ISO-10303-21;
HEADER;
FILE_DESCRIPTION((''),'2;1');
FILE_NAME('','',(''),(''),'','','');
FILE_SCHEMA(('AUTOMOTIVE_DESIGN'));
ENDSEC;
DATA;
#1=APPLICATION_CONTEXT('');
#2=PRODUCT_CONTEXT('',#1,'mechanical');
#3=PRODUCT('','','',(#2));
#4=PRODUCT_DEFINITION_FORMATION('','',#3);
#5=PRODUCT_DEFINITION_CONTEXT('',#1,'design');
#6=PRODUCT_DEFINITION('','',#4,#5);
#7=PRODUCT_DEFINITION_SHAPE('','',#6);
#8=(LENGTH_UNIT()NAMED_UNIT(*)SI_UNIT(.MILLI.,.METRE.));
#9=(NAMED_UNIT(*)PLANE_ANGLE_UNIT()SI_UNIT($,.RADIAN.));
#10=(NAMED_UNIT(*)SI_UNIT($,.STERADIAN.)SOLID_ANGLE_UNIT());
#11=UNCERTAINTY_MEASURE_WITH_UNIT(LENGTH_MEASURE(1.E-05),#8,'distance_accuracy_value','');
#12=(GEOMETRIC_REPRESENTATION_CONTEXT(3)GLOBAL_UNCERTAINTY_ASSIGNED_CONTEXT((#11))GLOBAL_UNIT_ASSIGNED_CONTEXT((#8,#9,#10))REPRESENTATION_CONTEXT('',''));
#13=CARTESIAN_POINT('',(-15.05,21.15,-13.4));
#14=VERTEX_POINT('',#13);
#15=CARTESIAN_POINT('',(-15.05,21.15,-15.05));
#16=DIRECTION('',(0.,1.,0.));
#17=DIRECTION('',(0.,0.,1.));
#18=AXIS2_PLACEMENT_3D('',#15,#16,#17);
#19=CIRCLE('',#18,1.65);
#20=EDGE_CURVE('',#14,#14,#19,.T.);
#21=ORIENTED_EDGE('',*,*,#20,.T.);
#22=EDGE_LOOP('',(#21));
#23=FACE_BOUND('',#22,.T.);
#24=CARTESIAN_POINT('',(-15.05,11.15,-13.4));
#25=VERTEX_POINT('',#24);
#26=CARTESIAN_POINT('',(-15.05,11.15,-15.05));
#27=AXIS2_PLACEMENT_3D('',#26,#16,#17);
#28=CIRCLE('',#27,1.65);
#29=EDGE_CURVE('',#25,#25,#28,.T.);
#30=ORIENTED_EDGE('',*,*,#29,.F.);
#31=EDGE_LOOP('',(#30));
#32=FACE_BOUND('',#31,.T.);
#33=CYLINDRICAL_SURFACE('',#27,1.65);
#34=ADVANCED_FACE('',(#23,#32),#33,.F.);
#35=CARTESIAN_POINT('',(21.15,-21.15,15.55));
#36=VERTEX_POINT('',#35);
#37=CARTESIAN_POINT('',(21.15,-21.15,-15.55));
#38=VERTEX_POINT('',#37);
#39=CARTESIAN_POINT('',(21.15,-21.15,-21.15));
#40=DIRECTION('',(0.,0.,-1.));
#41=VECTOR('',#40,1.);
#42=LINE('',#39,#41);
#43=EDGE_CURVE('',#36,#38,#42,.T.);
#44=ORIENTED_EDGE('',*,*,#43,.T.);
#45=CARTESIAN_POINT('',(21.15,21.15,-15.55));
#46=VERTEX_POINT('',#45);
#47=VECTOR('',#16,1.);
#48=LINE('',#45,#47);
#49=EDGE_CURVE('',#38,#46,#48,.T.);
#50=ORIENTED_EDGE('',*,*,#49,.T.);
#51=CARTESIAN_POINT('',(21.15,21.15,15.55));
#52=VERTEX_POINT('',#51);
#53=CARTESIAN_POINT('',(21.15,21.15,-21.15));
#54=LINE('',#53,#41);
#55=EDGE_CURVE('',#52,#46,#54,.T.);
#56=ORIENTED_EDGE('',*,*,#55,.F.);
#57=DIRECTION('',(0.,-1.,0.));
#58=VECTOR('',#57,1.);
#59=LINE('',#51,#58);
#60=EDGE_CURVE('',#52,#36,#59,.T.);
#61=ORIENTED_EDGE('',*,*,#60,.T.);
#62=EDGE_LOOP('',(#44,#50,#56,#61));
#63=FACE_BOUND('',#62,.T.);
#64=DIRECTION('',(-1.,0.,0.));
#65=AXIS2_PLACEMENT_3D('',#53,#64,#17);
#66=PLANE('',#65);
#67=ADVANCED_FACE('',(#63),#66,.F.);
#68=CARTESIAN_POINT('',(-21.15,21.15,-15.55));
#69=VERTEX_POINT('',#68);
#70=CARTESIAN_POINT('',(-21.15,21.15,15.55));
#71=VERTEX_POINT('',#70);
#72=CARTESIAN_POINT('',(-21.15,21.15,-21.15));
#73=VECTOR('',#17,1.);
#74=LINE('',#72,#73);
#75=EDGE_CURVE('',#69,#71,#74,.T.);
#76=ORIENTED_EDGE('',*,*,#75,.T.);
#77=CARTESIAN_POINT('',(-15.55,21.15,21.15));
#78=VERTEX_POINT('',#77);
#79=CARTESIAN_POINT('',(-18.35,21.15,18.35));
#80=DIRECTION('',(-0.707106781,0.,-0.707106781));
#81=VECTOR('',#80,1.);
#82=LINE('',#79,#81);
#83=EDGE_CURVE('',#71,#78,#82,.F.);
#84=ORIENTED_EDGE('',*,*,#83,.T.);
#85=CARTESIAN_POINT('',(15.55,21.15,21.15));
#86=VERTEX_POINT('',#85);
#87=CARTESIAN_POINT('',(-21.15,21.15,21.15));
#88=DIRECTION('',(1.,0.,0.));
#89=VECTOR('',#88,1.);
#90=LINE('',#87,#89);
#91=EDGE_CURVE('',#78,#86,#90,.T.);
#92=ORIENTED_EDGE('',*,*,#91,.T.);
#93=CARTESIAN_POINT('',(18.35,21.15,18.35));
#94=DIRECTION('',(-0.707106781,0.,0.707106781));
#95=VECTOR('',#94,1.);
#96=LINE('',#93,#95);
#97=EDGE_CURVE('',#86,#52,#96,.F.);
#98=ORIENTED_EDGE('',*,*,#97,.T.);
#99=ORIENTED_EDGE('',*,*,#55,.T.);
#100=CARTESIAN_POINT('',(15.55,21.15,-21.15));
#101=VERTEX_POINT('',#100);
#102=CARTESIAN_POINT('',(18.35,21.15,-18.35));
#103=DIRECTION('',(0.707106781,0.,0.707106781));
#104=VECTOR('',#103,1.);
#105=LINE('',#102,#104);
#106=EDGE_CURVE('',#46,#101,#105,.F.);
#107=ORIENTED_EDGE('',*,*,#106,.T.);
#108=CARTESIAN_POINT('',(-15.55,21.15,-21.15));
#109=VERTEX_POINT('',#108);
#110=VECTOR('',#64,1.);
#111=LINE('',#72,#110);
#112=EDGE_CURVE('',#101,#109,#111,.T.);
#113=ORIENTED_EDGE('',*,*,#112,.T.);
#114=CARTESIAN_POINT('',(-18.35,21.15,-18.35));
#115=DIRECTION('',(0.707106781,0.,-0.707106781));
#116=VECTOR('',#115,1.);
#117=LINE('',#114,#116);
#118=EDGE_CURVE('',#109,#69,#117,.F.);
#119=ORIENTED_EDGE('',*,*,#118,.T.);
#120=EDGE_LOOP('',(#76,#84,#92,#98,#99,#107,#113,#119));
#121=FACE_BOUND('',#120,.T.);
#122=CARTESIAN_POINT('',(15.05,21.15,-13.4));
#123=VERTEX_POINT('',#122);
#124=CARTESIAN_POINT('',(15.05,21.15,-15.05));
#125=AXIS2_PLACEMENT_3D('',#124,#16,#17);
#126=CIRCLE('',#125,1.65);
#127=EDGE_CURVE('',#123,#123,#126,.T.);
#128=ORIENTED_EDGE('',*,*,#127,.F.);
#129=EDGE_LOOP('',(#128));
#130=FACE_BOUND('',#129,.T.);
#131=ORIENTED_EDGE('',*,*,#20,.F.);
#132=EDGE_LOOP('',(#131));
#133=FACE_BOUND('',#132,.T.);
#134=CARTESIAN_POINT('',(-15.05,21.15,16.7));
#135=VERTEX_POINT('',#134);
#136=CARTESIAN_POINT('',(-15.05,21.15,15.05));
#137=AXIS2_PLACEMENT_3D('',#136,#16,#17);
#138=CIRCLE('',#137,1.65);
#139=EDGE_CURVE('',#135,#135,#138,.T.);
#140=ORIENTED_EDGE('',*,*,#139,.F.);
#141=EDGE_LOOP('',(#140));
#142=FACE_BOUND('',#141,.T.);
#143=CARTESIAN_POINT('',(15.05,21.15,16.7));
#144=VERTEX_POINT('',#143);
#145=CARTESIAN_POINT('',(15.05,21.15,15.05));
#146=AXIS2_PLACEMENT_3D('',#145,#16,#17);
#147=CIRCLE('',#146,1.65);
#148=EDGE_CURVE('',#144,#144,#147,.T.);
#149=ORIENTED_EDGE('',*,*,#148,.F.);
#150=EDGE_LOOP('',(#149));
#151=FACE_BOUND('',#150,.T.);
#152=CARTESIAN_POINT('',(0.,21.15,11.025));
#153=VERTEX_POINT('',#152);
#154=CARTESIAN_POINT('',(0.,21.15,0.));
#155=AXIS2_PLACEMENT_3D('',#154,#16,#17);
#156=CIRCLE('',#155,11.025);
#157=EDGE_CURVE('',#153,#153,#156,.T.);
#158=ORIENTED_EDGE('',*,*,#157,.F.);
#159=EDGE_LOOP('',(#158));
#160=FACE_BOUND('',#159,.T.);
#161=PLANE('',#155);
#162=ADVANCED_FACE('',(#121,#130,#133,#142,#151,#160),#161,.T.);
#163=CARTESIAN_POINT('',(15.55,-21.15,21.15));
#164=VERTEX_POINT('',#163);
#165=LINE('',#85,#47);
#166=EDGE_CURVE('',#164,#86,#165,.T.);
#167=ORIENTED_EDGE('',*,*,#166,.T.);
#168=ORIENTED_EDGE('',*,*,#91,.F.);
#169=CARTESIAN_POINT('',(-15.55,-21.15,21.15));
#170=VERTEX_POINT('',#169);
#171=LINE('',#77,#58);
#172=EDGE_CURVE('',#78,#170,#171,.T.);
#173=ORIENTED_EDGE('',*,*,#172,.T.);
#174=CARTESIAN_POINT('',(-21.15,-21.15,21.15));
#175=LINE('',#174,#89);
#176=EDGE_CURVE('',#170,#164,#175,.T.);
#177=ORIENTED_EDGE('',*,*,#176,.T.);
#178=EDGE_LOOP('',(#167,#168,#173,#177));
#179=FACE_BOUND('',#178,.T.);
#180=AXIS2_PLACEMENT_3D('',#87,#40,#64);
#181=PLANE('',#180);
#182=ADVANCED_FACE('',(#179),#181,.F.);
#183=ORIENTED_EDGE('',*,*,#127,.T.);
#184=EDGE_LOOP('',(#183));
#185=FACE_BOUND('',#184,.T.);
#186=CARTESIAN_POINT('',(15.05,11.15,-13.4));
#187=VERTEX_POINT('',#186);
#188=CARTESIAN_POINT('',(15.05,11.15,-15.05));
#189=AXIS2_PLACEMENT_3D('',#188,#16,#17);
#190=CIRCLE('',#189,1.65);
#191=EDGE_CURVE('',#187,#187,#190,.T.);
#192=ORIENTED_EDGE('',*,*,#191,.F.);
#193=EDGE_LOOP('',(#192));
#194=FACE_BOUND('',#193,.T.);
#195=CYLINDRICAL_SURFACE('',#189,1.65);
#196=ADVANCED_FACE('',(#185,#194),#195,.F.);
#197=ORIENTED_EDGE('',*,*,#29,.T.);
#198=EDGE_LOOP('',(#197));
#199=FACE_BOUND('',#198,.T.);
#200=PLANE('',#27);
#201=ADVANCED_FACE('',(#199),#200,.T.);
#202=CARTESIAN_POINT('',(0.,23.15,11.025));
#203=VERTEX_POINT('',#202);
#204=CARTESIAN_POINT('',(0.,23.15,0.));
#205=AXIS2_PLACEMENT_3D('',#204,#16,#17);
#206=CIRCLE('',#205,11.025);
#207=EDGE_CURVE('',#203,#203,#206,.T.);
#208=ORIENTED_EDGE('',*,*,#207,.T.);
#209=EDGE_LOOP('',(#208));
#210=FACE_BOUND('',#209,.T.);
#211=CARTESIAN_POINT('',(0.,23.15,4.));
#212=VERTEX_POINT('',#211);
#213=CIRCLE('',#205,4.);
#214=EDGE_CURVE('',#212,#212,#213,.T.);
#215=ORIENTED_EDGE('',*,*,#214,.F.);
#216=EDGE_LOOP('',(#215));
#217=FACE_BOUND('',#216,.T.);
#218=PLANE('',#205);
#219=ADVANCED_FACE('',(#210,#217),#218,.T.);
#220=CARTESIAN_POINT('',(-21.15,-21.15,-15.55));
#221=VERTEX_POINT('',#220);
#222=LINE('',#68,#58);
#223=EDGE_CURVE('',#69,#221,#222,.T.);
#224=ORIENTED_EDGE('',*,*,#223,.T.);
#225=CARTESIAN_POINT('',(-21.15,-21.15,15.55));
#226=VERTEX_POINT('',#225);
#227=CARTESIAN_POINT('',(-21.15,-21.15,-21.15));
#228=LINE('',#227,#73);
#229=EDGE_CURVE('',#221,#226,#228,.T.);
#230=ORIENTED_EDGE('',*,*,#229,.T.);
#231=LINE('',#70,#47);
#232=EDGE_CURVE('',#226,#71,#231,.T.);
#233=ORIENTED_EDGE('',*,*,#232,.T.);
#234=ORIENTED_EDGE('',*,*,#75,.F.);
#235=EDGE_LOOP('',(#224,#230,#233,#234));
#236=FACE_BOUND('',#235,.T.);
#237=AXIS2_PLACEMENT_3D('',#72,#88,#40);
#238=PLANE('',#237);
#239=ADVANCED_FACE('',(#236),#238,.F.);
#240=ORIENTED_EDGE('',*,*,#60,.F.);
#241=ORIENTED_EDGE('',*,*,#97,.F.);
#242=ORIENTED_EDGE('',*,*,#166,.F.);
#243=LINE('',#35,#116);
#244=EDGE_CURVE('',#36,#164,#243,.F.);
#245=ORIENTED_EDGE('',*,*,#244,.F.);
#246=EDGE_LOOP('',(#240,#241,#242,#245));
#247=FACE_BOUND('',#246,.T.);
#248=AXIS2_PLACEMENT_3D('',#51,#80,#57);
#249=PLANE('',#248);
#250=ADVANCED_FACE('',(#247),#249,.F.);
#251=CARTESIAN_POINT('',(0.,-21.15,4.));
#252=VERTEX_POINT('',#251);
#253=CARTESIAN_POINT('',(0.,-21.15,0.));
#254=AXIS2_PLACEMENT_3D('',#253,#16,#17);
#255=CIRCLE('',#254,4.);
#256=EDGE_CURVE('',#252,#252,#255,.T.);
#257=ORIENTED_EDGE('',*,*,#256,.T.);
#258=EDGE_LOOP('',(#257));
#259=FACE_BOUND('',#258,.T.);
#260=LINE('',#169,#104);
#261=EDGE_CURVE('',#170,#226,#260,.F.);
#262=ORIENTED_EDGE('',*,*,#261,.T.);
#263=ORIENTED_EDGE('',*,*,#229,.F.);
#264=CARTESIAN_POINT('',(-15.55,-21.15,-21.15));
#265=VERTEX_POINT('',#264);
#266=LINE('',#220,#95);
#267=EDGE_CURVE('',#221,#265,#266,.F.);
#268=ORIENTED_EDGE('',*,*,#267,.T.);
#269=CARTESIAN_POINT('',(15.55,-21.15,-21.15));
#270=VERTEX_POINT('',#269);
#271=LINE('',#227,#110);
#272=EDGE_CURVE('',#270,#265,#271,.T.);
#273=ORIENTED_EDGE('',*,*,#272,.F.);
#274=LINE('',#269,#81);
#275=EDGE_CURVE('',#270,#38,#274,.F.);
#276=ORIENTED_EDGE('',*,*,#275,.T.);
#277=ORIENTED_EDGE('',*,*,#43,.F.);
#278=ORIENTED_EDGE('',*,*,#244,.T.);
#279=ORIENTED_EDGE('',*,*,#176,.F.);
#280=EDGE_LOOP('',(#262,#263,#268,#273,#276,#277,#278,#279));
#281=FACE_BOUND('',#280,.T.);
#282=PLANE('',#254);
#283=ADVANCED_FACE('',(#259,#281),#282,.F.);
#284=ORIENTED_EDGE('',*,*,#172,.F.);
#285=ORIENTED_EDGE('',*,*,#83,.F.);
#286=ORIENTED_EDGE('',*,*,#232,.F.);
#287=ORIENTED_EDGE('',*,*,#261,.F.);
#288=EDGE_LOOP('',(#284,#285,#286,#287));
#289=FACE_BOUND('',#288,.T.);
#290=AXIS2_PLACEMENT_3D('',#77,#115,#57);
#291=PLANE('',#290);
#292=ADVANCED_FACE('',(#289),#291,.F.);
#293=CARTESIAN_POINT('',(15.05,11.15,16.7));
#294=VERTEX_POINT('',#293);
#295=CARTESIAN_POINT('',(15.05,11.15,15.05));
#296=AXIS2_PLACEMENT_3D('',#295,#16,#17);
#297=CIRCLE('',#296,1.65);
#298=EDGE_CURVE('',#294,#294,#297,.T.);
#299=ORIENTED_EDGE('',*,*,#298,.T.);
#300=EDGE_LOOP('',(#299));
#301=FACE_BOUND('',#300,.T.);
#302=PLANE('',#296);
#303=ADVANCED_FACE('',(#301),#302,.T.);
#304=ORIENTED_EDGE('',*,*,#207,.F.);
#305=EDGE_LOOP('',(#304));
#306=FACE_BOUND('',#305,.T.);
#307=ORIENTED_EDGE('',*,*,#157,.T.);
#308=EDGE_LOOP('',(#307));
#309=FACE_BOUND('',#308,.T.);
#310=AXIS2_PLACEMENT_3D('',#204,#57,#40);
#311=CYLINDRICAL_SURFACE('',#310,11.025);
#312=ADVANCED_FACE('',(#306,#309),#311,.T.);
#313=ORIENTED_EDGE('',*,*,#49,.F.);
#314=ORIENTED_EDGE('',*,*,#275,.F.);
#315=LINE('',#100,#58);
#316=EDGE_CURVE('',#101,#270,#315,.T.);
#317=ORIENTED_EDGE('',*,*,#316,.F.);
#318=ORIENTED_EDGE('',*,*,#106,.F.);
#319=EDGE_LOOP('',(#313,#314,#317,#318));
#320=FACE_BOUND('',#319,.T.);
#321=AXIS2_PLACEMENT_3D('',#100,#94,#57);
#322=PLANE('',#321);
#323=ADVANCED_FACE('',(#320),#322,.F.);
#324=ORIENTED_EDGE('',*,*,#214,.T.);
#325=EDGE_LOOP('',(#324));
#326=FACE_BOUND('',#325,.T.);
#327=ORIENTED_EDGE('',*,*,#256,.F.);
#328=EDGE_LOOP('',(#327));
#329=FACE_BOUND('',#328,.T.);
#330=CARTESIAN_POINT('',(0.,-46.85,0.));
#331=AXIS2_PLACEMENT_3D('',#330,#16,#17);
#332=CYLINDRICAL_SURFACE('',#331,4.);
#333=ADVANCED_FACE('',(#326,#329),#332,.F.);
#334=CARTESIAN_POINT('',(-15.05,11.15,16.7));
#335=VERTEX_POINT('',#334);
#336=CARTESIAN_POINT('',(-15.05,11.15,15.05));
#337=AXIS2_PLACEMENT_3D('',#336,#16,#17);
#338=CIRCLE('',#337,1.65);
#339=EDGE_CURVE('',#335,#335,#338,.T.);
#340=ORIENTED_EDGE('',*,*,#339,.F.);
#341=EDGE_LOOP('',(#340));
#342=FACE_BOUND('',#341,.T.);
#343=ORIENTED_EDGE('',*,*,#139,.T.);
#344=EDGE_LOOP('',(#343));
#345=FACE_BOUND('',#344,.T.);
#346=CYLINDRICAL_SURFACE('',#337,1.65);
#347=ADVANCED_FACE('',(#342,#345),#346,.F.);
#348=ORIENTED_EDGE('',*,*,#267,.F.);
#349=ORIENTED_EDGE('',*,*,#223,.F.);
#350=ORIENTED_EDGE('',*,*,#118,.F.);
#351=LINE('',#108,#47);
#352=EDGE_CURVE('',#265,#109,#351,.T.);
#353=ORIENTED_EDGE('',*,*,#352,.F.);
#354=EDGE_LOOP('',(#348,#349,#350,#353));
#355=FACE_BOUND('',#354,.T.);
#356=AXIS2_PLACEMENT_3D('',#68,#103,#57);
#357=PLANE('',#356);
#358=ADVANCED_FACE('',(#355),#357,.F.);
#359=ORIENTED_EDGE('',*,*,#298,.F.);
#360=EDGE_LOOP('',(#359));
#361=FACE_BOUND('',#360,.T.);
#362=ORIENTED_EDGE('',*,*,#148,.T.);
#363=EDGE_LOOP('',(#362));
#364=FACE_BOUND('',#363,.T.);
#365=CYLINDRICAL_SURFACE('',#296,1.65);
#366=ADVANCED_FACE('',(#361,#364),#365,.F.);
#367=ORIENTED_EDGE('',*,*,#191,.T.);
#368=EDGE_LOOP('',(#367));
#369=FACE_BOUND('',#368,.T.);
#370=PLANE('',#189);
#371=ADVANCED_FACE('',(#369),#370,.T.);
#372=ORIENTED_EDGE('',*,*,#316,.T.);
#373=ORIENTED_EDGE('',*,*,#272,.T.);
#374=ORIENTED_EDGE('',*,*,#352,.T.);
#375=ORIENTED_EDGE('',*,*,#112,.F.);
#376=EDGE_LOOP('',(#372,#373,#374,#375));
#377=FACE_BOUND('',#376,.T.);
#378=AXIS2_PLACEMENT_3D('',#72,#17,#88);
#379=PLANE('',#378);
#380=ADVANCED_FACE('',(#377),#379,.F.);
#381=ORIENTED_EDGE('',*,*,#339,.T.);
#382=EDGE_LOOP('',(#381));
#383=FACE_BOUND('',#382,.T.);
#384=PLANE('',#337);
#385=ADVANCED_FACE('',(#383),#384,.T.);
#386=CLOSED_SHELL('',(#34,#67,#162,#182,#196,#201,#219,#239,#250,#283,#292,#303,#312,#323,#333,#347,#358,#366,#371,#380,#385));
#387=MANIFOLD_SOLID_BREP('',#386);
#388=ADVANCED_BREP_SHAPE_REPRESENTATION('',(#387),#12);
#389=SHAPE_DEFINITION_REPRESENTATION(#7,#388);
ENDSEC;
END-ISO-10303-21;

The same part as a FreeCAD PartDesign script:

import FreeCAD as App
import Part
import Sketcher
from FreeCAD import Vector
Q = App.Units.Quantity


def edges_at(feature, points):
    """Names of the edges that pass closest to the given points."""
    edges = feature.Shape.Edges
    near = lambda p: min(range(len(edges)), key=lambda i: edges[i].distToShape(Part.Vertex(*p))[0])
    return sorted({f"Edge{near(p) + 1}" for p in points})

doc = App.newDocument("Part")
body = doc.addObject("PartDesign::Body", "Body")

# Sketch on XZ plane
sketch1 = body.newObject("Sketcher::SketchObject", "Sketch")
sketch1.AttachmentSupport = (doc.getObject("XZ_Plane"), [""])
sketch1.MapMode = "FlatFace"
sketch1.addGeometry([
    Part.LineSegment(Vector(-21, -21, 0), Vector(-21, 21, 0)),
    Part.LineSegment(Vector(-21, 21, 0), Vector(21, 21, 0)),
    Part.LineSegment(Vector(21, 21, 0), Vector(21, -21, 0)),
    Part.LineSegment(Vector(21, -21, 0), Vector(-21, -21, 0)),
], False)
sketch1.addConstraint([
    Sketcher.Constraint("Coincident", 0, 2, 1, 1),
    Sketcher.Constraint("Coincident", 1, 2, 2, 1),
    Sketcher.Constraint("Coincident", 2, 2, 3, 1),
    Sketcher.Constraint("Coincident", 3, 2, 0, 1),
    Sketcher.Constraint("Vertical", 0),
    Sketcher.Constraint("Horizontal", 1),
    Sketcher.Constraint("Vertical", 2),
    Sketcher.Constraint("Horizontal", 3),
    Sketcher.Constraint("Symmetric", 0, 2, 2, 2, -1, 1),
    Sketcher.Constraint("Equal", 3, 0),
    Sketcher.Constraint("DistanceX", 1, 1, 1, 2, Q("42.3 mm")),
])
pad1 = body.newObject("PartDesign::Pad", "Pad")
pad1.Profile = sketch1
pad1.Length = 42.3
pad1.Midplane = True

# Sketch on XZ plane
sketch2 = body.newObject("Sketcher::SketchObject", "Sketch001")
sketch2.AttachmentSupport = (doc.getObject("XZ_Plane"), [""])
sketch2.MapMode = "FlatFace"
sketch2.AttachmentOffset = App.Placement(Vector(0, 0, -21.15), App.Rotation())
sketch2.addGeometry(Part.Circle(Vector(0, 0, 0), Vector(0, 0, 1), 11), False)
sketch2.addConstraint([
    Sketcher.Constraint("Coincident", 0, 3, -1, 1),
    Sketcher.Constraint("Diameter", 0, Q("22.05 mm")),
])
pad2 = body.newObject("PartDesign::Pad", "Pad001")
pad2.Profile = sketch2
pad2.Length = 2
pad2.Reversed = True
doc.recompute()

chamfer = body.newObject("PartDesign::Chamfer", "Chamfer")
chamfer.Base = (pad2, edges_at(pad2, [
    (21.15, 0, 21.15),
    (-21.15, 0, 21.15),
    (-21.15, 0, -21.15),
    (21.15, 0, -21.15),
]))
chamfer.Size = 5.6

# Sketch on XZ plane
sketch3 = body.newObject("Sketcher::SketchObject", "Sketch002")
sketch3.AttachmentSupport = (doc.getObject("XZ_Plane"), [""])
sketch3.MapMode = "FlatFace"
sketch3.AttachmentOffset = App.Placement(Vector(0, 0, -21.15), App.Rotation())
sketch3.addGeometry([
    Part.Circle(Vector(-15.1, -15.1, 0), Vector(0, 0, 1), 1.6),
    Part.Circle(Vector(15.1, -15.1, 0), Vector(0, 0, 1), 1.6),
    Part.Circle(Vector(15.1, 15.1, 0), Vector(0, 0, 1), 1.6),
    Part.Circle(Vector(-15.1, 15.1, 0), Vector(0, 0, 1), 1.6),
], False)
sketch3.addConstraint([
    Sketcher.Constraint("Equal", 0, 1),
    Sketcher.Constraint("Equal", 1, 2),
    Sketcher.Constraint("Equal", 2, 3),
    Sketcher.Constraint("Symmetric", 0, 3, 2, 3, -1, 1),
    Sketcher.Constraint("Symmetric", 1, 3, 3, 3, -1, 1),
    Sketcher.Constraint("Symmetric", 0, 3, 1, 3, -2),
    Sketcher.Constraint("Diameter", 0, Q("3.3 mm")),
    Sketcher.Constraint("DistanceX", 0, 3, 1, 3, Q("30.1 mm")),
    Sketcher.Constraint("DistanceY", 1, 3, 2, 3, Q("30.1 mm")),
])
pocket1 = body.newObject("PartDesign::Pocket", "Pocket")
pocket1.Profile = sketch3
pocket1.Length = 10
pocket1.Reversed = True

# Sketch on XZ plane
sketch4 = body.newObject("Sketcher::SketchObject", "Sketch003")
sketch4.AttachmentSupport = (doc.getObject("XZ_Plane"), [""])
sketch4.MapMode = "FlatFace"
sketch4.AttachmentOffset = App.Placement(Vector(0, 0, -23.15), App.Rotation())
sketch4.addGeometry(Part.Circle(Vector(0, 0, 0), Vector(0, 0, 1), 4), False)
sketch4.addConstraint([
    Sketcher.Constraint("Coincident", 0, 3, -1, 1),
    Sketcher.Constraint("Diameter", 0, Q("8 mm")),
])
pocket2 = body.newObject("PartDesign::Pocket", "Pocket001")
pocket2.Profile = sketch4
pocket2.Length = 70
pocket2.Reversed = True

doc.recompute()
